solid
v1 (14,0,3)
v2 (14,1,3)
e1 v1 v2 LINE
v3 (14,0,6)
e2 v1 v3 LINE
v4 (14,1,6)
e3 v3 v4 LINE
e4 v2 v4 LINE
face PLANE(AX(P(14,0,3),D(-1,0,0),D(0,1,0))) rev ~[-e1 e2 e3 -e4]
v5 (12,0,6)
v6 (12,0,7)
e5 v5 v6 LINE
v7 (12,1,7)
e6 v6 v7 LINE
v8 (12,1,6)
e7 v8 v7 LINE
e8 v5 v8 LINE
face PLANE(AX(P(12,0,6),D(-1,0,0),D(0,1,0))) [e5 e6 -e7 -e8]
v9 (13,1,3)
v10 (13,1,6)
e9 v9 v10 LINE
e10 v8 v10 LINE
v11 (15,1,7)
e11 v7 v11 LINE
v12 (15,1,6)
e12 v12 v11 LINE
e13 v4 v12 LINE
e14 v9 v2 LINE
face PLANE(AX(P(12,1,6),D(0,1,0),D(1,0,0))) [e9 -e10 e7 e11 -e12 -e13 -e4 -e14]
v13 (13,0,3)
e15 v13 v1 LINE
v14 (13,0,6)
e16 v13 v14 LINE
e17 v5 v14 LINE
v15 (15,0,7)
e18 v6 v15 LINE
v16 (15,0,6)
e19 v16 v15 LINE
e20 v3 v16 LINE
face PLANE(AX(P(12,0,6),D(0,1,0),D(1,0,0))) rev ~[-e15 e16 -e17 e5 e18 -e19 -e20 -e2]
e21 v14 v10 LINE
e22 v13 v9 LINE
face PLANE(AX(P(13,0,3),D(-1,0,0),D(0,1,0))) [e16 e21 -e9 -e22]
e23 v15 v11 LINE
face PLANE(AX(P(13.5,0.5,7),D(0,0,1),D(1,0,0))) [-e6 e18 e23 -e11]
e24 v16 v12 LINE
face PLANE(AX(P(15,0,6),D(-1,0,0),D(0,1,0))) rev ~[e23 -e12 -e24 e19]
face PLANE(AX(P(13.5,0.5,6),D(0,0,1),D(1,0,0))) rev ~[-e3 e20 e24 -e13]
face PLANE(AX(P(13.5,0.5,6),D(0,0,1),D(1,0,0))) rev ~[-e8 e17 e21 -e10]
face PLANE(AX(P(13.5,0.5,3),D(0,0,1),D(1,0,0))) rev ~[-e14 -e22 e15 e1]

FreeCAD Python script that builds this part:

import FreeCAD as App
import Part
import Sketcher

V = App.Vector

doc = App.newDocument("Part")
body = doc.addObject("PartDesign::Body", "Body")

sketch1 = doc.addObject("Sketcher::SketchObject", "Sketch")
body.addObject(sketch1)
sketch1.AttachmentSupport = (doc.XY_Plane, [""])
sketch1.MapMode = "FlatFace"
sketch1.AttachmentOffset = App.Placement(V(0, 0, 3), App.Rotation())
sketch1.addGeometry(Part.LineSegment(V(13, 1, 0), V(13, 0, 0)), False)
sketch1.addGeometry(Part.LineSegment(V(13, 0, 0), V(14, 0, 0)), False)
sketch1.addGeometry(Part.LineSegment(V(14, 0, 0), V(14, 1, 0)), False)
sketch1.addGeometry(Part.LineSegment(V(14, 1, 0), V(13, 1, 0)), False)
sketch1.addConstraint(Sketcher.Constraint("Coincident", 0, 2, 1, 1))
sketch1.addConstraint(Sketcher.Constraint("Coincident", 1, 2, 2, 1))
sketch1.addConstraint(Sketcher.Constraint("Coincident", 2, 2, 3, 1))
sketch1.addConstraint(Sketcher.Constraint("Coincident", 3, 2, 0, 1))
sketch1.addConstraint(Sketcher.Constraint("Vertical", 0))
sketch1.addConstraint(Sketcher.Constraint("Horizontal", 1))
sketch1.addConstraint(Sketcher.Constraint("Vertical", 2))
sketch1.addConstraint(Sketcher.Constraint("Horizontal", 3))
sketch1.addConstraint(Sketcher.Constraint("PointOnObject", 0, 2, -1))
sketch1.addConstraint(Sketcher.Constraint("Equal", 3, 0))
sketch1.addConstraint(Sketcher.Constraint("DistanceX", 1, 1, 1, 2, 1.0))
sketch1.addConstraint(Sketcher.Constraint("DistanceX", -1, 1, 0, 2, 13.0))
pad1 = doc.addObject("PartDesign::Pad", "Pad")
body.addObject(pad1)
pad1.Profile = sketch1
pad1.Length = 3
body2 = doc.addObject("PartDesign::Body", "Body001")

sketch2 = doc.addObject("Sketcher::SketchObject", "Sketch001")
body2.addObject(sketch2)
sketch2.AttachmentSupport = (doc.getObject("XY_Plane001"), [""])
sketch2.MapMode = "FlatFace"
sketch2.AttachmentOffset = App.Placement(V(0, 0, 6), App.Rotation())
sketch2.addGeometry(Part.LineSegment(V(12, 1, 0), V(12, 0, 0)), False)
sketch2.addGeometry(Part.LineSegment(V(12, 0, 0), V(15, 0, 0)), False)
sketch2.addGeometry(Part.LineSegment(V(15, 0, 0), V(15, 1, 0)), False)
sketch2.addGeometry(Part.LineSegment(V(15, 1, 0), V(12, 1, 0)), False)
sketch2.addConstraint(Sketcher.Constraint("Coincident", 0, 2, 1, 1))
sketch2.addConstraint(Sketcher.Constraint("Coincident", 1, 2, 2, 1))
sketch2.addConstraint(Sketcher.Constraint("Coincident", 2, 2, 3, 1))
sketch2.addConstraint(Sketcher.Constraint("Coincident", 3, 2, 0, 1))
sketch2.addConstraint(Sketcher.Constraint("Vertical", 0))
sketch2.addConstraint(Sketcher.Constraint("Horizontal", 1))
sketch2.addConstraint(Sketcher.Constraint("Vertical", 2))
sketch2.addConstraint(Sketcher.Constraint("Horizontal", 3))
sketch2.addConstraint(Sketcher.Constraint("PointOnObject", 0, 2, -1))
sketch2.addConstraint(Sketcher.Constraint("DistanceX", 1, 1, 1, 2, 3.0))
sketch2.addConstraint(Sketcher.Constraint("DistanceY", 0, 2, 0, 1, 1.0))
sketch2.addConstraint(Sketcher.Constraint("DistanceX", -1, 1, 0, 2, 12.0))
pad2 = doc.addObject("PartDesign::Pad", "Pad001")
body2.addObject(pad2)
pad2.Profile = sketch2
pad2.Length = 1
doc.recompute()

boolean = doc.addObject("PartDesign::Boolean", "Boolean")
body2.addObject(boolean)
boolean.Type = "Fuse"
boolean.addObjects([body])

doc.recompute()
